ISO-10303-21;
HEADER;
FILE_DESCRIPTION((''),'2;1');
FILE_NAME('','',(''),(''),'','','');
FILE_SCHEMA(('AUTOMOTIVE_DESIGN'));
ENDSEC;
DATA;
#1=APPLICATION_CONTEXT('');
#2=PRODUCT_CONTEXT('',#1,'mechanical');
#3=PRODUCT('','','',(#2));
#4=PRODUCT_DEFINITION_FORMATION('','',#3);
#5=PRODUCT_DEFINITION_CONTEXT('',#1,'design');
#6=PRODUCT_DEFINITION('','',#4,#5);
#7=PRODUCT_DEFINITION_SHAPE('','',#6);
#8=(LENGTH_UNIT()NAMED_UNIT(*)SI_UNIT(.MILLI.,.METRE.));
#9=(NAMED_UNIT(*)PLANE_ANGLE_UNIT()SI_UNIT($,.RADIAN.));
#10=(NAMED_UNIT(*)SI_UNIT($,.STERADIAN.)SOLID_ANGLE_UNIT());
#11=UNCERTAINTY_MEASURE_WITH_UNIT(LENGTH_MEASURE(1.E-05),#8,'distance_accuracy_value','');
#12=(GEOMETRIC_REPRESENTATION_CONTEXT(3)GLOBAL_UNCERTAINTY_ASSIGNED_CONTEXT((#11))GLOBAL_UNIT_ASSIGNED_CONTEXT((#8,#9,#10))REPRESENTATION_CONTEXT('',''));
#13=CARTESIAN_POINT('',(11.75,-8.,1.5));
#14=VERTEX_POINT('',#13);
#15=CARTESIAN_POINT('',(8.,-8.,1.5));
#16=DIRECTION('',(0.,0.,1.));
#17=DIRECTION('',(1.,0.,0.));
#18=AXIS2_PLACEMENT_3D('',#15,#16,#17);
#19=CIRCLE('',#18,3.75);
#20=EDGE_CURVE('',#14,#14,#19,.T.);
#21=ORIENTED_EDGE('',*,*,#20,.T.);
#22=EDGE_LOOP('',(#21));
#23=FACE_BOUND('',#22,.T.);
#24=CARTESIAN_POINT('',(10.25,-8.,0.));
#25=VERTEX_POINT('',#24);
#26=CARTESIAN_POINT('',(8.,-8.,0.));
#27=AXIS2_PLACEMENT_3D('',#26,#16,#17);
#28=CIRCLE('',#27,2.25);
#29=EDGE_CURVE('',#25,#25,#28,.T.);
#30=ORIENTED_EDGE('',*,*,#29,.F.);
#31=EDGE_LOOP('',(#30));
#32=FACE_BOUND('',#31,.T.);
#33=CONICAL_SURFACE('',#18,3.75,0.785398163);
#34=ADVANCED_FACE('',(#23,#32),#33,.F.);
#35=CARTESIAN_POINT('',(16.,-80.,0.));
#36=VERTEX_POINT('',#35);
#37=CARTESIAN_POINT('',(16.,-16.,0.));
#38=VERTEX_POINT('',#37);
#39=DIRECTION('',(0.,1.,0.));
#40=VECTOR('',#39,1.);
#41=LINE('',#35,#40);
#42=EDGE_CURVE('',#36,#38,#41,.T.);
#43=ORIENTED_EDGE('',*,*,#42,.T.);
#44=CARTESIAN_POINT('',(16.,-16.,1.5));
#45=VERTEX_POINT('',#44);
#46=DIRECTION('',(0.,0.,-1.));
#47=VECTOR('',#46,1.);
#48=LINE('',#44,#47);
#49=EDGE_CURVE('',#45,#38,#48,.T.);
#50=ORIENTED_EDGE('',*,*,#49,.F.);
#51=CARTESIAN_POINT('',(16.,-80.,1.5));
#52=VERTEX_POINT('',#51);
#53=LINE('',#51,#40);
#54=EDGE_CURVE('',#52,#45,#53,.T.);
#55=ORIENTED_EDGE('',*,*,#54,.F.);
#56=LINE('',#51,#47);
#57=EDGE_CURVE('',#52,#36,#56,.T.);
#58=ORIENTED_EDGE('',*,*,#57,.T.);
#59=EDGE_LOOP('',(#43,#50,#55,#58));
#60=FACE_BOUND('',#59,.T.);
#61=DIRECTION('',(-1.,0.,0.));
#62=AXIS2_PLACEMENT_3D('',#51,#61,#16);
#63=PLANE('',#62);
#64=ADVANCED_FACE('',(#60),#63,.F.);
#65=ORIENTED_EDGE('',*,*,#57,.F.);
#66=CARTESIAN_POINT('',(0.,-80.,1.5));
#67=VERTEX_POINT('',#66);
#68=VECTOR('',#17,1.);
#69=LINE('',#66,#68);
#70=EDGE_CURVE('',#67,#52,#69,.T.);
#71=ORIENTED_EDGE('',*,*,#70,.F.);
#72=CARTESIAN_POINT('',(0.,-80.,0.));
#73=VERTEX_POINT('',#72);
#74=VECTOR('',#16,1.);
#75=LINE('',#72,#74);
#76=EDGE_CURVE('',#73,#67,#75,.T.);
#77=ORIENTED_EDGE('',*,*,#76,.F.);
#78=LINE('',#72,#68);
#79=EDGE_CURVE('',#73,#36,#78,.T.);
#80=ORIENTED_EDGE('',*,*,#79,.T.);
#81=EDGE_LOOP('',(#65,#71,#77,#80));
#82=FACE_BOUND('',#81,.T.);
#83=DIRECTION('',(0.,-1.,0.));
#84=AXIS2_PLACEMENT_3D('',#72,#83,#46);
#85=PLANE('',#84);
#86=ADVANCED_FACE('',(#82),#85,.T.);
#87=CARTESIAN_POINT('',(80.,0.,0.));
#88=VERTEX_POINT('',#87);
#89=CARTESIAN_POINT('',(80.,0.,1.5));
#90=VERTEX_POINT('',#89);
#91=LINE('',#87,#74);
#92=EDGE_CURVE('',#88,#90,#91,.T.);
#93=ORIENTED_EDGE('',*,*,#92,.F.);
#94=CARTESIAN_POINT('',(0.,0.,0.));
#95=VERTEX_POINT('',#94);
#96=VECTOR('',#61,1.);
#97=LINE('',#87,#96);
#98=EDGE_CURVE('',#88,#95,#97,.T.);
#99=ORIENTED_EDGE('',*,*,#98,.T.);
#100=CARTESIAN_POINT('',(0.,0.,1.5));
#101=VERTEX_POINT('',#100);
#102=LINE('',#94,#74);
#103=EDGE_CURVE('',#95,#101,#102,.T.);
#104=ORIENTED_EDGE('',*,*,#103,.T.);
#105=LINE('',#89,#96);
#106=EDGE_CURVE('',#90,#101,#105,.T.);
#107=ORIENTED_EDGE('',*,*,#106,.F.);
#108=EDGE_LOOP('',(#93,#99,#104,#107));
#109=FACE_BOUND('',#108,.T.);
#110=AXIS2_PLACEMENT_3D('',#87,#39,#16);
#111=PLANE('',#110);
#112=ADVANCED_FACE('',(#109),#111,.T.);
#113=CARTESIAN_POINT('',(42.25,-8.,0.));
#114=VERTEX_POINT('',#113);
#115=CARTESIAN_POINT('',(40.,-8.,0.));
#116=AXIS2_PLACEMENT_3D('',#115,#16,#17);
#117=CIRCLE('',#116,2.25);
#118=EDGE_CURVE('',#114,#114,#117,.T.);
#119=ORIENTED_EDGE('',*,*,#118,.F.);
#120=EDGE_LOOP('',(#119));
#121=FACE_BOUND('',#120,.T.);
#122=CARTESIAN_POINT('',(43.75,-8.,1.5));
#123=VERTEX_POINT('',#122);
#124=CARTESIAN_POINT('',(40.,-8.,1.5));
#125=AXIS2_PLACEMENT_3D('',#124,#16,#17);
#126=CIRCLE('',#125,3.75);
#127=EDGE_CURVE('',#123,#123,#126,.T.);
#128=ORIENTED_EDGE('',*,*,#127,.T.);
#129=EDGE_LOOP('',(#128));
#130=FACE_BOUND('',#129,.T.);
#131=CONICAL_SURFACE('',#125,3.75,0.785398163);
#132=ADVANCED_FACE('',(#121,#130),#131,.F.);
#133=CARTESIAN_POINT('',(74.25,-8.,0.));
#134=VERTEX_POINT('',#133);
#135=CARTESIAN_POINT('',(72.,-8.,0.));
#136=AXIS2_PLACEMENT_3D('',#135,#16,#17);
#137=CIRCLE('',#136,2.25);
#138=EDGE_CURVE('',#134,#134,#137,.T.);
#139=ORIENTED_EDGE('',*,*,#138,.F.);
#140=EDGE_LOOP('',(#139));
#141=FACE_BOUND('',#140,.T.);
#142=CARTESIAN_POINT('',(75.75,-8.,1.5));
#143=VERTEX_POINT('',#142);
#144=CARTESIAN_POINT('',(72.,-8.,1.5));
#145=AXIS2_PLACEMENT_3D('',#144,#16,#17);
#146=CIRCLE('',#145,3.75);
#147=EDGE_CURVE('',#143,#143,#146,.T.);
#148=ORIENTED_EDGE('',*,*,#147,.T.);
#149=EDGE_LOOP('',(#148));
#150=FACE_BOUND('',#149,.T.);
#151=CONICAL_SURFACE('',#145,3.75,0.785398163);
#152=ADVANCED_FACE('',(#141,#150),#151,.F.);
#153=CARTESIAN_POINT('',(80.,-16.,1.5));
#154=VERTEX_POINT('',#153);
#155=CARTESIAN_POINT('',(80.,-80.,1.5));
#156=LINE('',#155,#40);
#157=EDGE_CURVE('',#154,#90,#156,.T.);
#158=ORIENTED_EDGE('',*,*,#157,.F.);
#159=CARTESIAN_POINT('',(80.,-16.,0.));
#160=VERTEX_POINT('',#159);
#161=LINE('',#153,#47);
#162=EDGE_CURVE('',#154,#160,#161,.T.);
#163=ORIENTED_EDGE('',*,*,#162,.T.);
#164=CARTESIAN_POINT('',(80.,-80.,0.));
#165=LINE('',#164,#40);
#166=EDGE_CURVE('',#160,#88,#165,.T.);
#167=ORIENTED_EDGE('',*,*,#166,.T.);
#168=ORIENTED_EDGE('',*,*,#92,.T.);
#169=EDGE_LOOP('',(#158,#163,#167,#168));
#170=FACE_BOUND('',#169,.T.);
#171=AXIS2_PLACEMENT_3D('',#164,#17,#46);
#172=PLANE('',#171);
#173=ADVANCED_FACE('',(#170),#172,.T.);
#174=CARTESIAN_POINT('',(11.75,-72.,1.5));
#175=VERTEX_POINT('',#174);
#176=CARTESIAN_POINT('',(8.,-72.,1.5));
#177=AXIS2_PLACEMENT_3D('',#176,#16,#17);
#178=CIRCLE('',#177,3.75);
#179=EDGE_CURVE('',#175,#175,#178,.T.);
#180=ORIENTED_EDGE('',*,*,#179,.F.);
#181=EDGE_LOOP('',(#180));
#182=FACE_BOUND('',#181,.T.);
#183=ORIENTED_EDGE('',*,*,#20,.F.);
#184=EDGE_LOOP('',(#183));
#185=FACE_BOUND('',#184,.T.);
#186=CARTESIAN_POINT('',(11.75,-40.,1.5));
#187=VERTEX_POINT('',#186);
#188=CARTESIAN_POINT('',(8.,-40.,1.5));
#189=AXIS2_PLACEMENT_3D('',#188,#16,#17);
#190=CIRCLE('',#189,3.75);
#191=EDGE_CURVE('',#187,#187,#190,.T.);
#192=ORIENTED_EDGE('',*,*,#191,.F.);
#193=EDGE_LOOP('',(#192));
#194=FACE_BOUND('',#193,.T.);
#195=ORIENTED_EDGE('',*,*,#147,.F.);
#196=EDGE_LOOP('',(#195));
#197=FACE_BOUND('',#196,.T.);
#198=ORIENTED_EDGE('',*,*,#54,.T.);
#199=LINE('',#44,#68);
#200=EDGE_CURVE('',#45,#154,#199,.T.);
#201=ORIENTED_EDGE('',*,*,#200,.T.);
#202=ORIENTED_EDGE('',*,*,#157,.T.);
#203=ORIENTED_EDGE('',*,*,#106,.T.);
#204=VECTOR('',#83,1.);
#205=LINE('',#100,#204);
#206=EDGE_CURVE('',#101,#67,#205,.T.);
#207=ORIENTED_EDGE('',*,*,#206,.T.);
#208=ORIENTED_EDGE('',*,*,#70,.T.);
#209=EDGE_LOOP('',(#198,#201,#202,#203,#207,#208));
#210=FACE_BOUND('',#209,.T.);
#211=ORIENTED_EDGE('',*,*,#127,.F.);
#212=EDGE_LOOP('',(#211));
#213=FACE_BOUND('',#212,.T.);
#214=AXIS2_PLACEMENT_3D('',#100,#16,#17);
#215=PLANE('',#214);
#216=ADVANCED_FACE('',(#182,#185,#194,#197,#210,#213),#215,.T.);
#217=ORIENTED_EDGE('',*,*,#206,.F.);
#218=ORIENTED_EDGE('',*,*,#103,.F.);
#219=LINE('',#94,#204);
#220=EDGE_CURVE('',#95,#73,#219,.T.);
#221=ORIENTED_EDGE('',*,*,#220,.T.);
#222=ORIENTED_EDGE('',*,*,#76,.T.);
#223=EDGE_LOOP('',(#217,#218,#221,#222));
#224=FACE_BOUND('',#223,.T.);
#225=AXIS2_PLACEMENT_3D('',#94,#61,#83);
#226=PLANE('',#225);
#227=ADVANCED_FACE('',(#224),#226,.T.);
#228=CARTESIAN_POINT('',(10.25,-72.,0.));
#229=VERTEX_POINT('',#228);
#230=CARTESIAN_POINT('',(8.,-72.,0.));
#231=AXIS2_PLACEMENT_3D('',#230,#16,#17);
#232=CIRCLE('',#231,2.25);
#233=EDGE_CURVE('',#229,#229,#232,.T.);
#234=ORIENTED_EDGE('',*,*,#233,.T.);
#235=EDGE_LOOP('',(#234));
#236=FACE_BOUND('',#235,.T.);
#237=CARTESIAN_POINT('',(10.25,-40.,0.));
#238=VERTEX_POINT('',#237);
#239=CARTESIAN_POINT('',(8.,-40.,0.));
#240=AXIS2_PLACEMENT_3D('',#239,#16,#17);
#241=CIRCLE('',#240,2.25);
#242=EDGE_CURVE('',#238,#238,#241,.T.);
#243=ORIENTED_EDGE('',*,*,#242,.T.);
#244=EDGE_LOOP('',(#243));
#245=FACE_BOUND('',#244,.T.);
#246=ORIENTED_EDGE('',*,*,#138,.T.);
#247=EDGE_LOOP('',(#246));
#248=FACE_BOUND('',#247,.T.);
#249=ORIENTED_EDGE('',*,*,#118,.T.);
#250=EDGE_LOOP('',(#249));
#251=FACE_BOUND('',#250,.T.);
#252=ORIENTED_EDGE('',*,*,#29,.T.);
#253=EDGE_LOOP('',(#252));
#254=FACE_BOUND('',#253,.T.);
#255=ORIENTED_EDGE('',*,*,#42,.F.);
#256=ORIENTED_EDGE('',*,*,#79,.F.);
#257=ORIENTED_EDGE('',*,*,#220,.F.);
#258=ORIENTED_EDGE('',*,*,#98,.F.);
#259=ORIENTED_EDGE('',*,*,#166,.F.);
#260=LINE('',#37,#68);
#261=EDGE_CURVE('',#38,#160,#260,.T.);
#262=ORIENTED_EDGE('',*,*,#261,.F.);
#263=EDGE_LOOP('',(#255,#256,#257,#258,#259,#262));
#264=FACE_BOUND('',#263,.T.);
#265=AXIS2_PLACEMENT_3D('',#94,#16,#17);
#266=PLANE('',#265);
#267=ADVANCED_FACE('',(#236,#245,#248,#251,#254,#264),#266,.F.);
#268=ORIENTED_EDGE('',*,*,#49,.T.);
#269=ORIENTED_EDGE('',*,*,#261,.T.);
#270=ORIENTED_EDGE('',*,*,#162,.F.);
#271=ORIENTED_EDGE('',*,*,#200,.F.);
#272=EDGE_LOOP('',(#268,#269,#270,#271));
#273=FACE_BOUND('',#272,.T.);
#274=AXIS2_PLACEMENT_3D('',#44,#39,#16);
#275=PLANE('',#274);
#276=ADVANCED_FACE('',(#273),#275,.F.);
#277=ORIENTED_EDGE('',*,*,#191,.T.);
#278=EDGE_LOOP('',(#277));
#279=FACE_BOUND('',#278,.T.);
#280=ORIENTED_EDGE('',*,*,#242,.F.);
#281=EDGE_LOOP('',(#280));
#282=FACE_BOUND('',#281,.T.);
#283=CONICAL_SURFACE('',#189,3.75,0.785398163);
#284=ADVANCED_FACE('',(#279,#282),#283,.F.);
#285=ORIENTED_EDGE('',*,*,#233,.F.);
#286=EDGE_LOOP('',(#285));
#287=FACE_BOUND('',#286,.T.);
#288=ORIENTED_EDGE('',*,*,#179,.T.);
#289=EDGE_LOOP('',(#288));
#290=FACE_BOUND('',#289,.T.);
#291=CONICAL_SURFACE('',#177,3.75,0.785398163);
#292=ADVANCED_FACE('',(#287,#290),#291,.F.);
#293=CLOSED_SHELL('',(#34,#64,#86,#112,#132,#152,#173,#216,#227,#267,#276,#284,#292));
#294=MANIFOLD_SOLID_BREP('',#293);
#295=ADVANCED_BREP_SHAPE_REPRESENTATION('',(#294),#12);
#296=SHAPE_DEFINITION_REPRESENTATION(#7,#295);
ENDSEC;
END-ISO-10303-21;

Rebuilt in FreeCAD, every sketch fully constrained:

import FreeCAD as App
import Part
import Sketcher

V = App.Vector
Q = App.Units.Quantity


def add_polygon(sketch, points):
    """Adds a closed chain of lines whose ends are joined by coincident constraints."""
    first, n = sketch.GeometryCount, len(points)
    for a, b in zip(points, points[1:] + points[:1]):
        sketch.addGeometry(Part.LineSegment(App.Vector(*a, 0), App.Vector(*b, 0)), False)
    for i in range(n):
        sketch.addConstraint(Sketcher.Constraint("Coincident", first + i, 2, first + (i + 1) % n, 1))

doc = App.newDocument("Part")
params = doc.addObject("Spreadsheet::Sheet", "Params")
for row, (alias, value) in enumerate([
    ("sketch1_width", "80 mm"),
    ("pad1_length", "1.5 mm"),
    ("sketch2_width", "64 mm"),
    ("sketch3_height", "1.5 mm"),
    ("sketch3_width", "3.75 mm"),
    ("groove_angle", "360 deg"),
    ("linearpattern_pitch", "32 mm"),
    ("linearpattern2_pitch", "64 mm"),
    ("linearpattern3_pitch", "32 mm"),
    ("linearpattern4_pitch", "64 mm"),
], start=1):
    params.set(f"A{row}", alias)
    params.set(f"B{row}", "=" + value)
    params.setAlias(f"B{row}", alias)

body = doc.addObject("PartDesign::Body", "Body")

# Sketch on XY plane
sketch1 = doc.addObject("Sketcher::SketchObject", "Sketch")
body.addObject(sketch1)
sketch1.AttachmentSupport = (doc.XY_Plane, [""])
sketch1.MapMode = "FlatFace"
sketch1.AttachmentOffset = App.Placement(V(0, 0, 1.5), App.Rotation())
add_polygon(sketch1, [(0, 0), (0, -80), (80, -80), (80, 0)])  # lines 0-3
sketch1.addConstraint(Sketcher.Constraint("Vertical", 0))
sketch1.addConstraint(Sketcher.Constraint("Horizontal", 1))
sketch1.addConstraint(Sketcher.Constraint("Vertical", 2))
sketch1.addConstraint(Sketcher.Constraint("Horizontal", 3))
sketch1.addConstraint(Sketcher.Constraint("Coincident", 3, 2, -1, 1))
sketch1.addConstraint(Sketcher.Constraint("Equal", 3, 0))
sketch1.addConstraint(Sketcher.Constraint("DistanceX", 1, 1, 1, 2, 80.0))
sketch1.setExpression("Constraints[10]", "Params.sketch1_width")
pad1 = doc.addObject("PartDesign::Pad", "Pad")
body.addObject(pad1)
pad1.Profile = sketch1
pad1.setExpression("Length", "Params.pad1_length")
pad1.Reversed = True

# Sketch on XY plane
sketch2 = doc.addObject("Sketcher::SketchObject", "Sketch001")
body.addObject(sketch2)
sketch2.AttachmentSupport = (doc.XY_Plane, [""])
sketch2.MapMode = "FlatFace"
add_polygon(sketch2, [(80, -16), (80, -80), (16, -80), (16, -16)])  # lines 0-3
sketch2.addConstraint(Sketcher.Constraint("Vertical", 0))
sketch2.addConstraint(Sketcher.Constraint("Horizontal", 1))
sketch2.addConstraint(Sketcher.Constraint("Vertical", 2))
sketch2.addConstraint(Sketcher.Constraint("Horizontal", 3))
sketch2.addConstraint(Sketcher.Constraint("Equal", 3, 0))
sketch2.addConstraint(Sketcher.Constraint("DistanceX", 1, 2, 1, 1, 64.0))
sketch2.addConstraint(Sketcher.Constraint("DistanceX", -1, 1, 0, 2, 80.0))
sketch2.addConstraint(Sketcher.Constraint("DistanceY", 0, 2, -1, 1, 80.0))
sketch2.setExpression("Constraints[9]", "Params.sketch2_width")
pocket1 = doc.addObject("PartDesign::Pocket", "Pocket")
body.addObject(pocket1)
pocket1.Profile = sketch2
pocket1.Type = "ThroughAll"
pocket1.Reversed = True

# Sketch on YZ plane
sketch3 = doc.addObject("Sketcher::SketchObject", "Sketch002")
body.addObject(sketch3)
sketch3.AttachmentSupport = (doc.YZ_Plane, [""])
sketch3.MapMode = "FlatFace"
sketch3.AttachmentOffset = App.Placement(V(0, 0, 8), App.Rotation())
add_polygon(sketch3, [(-8, 0), (-8, 1.5), (-11.8, 1.5), (-10.2, 0)])  # lines 0-3
sketch3.addGeometry(Part.LineSegment(V(-8, 0, 0), V(-8, 1.5, 0)), True)  # axis
sketch3.addConstraint(Sketcher.Constraint("Vertical", 0))
sketch3.addConstraint(Sketcher.Constraint("Horizontal", 1))
sketch3.addConstraint(Sketcher.Constraint("Horizontal", 3))
sketch3.addConstraint(Sketcher.Constraint("Vertical", 4))
sketch3.addConstraint(Sketcher.Constraint("Coincident", 4, 1, 3, 2))
sketch3.addConstraint(Sketcher.Constraint("PointOnObject", 2, 2, -1))
sketch3.addConstraint(Sketcher.Constraint("Horizontal", 1, 2, 4, 2))
sketch3.addConstraint(Sketcher.Constraint("Angle", 2, Q("-45 deg")))
sketch3.addConstraint(Sketcher.Constraint("DistanceY", 0, 1, 0, 2, 1.5))
sketch3.addConstraint(Sketcher.Constraint("DistanceX", 0, 2, -1, 1, 8.0))
sketch3.addConstraint(Sketcher.Constraint("DistanceX", 1, 2, 1, 1, 3.75))
sketch3.setExpression("Constraints[12]", "Params.sketch3_height")
sketch3.setExpression("Constraints[14]", "Params.sketch3_width")
groove = doc.addObject("PartDesign::Groove", "Groove")
body.addObject(groove)
groove.Profile = sketch3
groove.ReferenceAxis = (sketch3, ["Axis0"])
groove.setExpression("Angle", "Params.groove_angle")
doc.recompute()

linearpattern = doc.addObject("PartDesign::LinearPattern", "LinearPattern")
body.addObject(linearpattern)
linearpattern.Originals = [groove]
linearpattern.Direction = (doc.X_Axis, [""])
linearpattern.Mode = "offset"
linearpattern.setExpression("Offset", "Params.linearpattern_pitch")
linearpattern.Occurrences = 2
body.Tip = linearpattern
doc.recompute()

linearpattern2 = doc.addObject("PartDesign::LinearPattern", "LinearPattern001")
body.addObject(linearpattern2)
linearpattern2.Originals = [groove]
linearpattern2.Direction = (doc.X_Axis, [""])
linearpattern2.Mode = "offset"
linearpattern2.setExpression("Offset", "Params.linearpattern2_pitch")
linearpattern2.Occurrences = 2
body.Tip = linearpattern2
doc.recompute()

linearpattern3 = doc.addObject("PartDesign::LinearPattern", "LinearPattern002")
body.addObject(linearpattern3)
linearpattern3.Originals = [groove]
linearpattern3.Direction = (doc.Y_Axis, [""])
linearpattern3.Mode = "offset"
linearpattern3.setExpression("Offset", "Params.linearpattern3_pitch")
linearpattern3.Occurrences = 2
linearpattern3.Reversed = True
body.Tip = linearpattern3
doc.recompute()

linearpattern4 = doc.addObject("PartDesign::LinearPattern", "LinearPattern003")
body.addObject(linearpattern4)
linearpattern4.Originals = [groove]
linearpattern4.Direction = (doc.Y_Axis, [""])
linearpattern4.Mode = "offset"
linearpattern4.setExpression("Offset", "Params.linearpattern4_pitch")
linearpattern4.Occurrences = 2
linearpattern4.Reversed = True
body.Tip = linearpattern4

doc.recompute()
